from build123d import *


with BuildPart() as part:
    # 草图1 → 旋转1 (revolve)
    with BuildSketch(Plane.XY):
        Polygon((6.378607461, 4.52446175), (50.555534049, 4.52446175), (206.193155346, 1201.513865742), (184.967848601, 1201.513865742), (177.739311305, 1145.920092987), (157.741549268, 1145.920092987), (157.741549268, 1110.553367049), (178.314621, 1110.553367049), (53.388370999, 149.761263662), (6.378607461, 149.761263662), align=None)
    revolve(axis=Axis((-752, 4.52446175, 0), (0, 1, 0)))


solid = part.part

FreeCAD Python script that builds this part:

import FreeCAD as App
import Part
import Sketcher

V = App.Vector
Q = App.Units.Quantity

doc = App.newDocument("Part")
params = doc.addObject("Spreadsheet::Sheet", "Params")
for row, (alias, value) in enumerate([
    ("revolution_angle", "360 deg"),
], start=1):
    params.set(f"A{row}", alias)
    params.set(f"B{row}", "=" + value)
    params.setAlias(f"B{row}", alias)

body = doc.addObject("PartDesign::Body", "Body")

# Sketch on XY plane
sketch1 = body.newObject("Sketcher::SketchObject", "Sketch")
sketch1.AttachmentSupport = (doc.getObject("XY_Plane"), [""])
sketch1.MapMode = "FlatFace"
sketch1.addGeometry([
    Part.LineSegment(V(6.378607, 4.524462, 0), V(50.555534, 4.524462, 0)),  # 0
    Part.LineSegment(V(50.555534, 4.524462, 0), V(206.193155, 1201.513866, 0)),  # 1
    Part.LineSegment(V(206.193155, 1201.513866, 0), V(184.967849, 1201.513866, 0)),  # 2
    Part.LineSegment(V(184.967849, 1201.513866, 0), V(177.739311, 1145.920093, 0)),  # 3
    Part.LineSegment(V(177.739311, 1145.920093, 0), V(157.741549, 1145.920093, 0)),  # 4
    Part.LineSegment(V(157.741549, 1145.920093, 0), V(157.741549, 1110.553367, 0)),  # 5
    Part.LineSegment(V(157.741549, 1110.553367, 0), V(178.314621, 1110.553367, 0)),  # 6
    Part.LineSegment(V(178.314621, 1110.553367, 0), V(53.388371, 149.761264, 0)),  # 7
    Part.LineSegment(V(53.388371, 149.761264, 0), V(6.378607, 149.761264, 0)),  # 8
    Part.LineSegment(V(6.378607, 149.761264, 0), V(6.378607, 4.524462, 0)),  # 9
], False)
sketch1.addGeometry(Part.LineSegment(V(-752, 4.524462, 0), V(-752, 1201.513866, 0)), True)  # axis
sketch1.addConstraint([
    Sketcher.Constraint("Coincident", 0, 2, 1, 1),
    Sketcher.Constraint("Coincident", 1, 2, 2, 1),
    Sketcher.Constraint("Coincident", 2, 2, 3, 1),
    Sketcher.Constraint("Coincident", 3, 2, 4, 1),
    Sketcher.Constraint("Coincident", 4, 2, 5, 1),
    Sketcher.Constraint("Coincident", 5, 2, 6, 1),
    Sketcher.Constraint("Coincident", 6, 2, 7, 1),
    Sketcher.Constraint("Coincident", 7, 2, 8, 1),
    Sketcher.Constraint("Coincident", 8, 2, 9, 1),
    Sketcher.Constraint("Coincident", 9, 2, 0, 1),
    Sketcher.Constraint("Horizontal", 0),
    Sketcher.Constraint("Horizontal", 2),
    Sketcher.Constraint("Horizontal", 4),
    Sketcher.Constraint("Vertical", 5),
    Sketcher.Constraint("Horizontal", 6),
    Sketcher.Constraint("Horizontal", 8),
    Sketcher.Constraint("Vertical", 9),
    Sketcher.Constraint("Vertical", 10),
    Sketcher.Constraint("Parallel", 1, 3),
    Sketcher.Constraint("Parallel", 3, 7),
    Sketcher.Constraint("Horizontal", 9, 2, 10, 1),
    Sketcher.Constraint("Horizontal", 2, 2, 10, 2),
    Sketcher.Constraint("DistanceX", 10, 1, -1, 1, Q("752 mm")),
    Sketcher.Constraint("DistanceY", 9, 2, 9, 1, Q("145.236802 mm")),
    Sketcher.Constraint("DistanceX", 6, 1, 6, 2, Q("20.573072 mm")),
    Sketcher.Constraint("DistanceX", 4, 2, 2, 2, Q("27.226299 mm")),
    Sketcher.Constraint("DistanceY", 5, 2, 2, 2, Q("90.960499 mm")),
    Sketcher.Constraint("DistanceX", 0, 1, 0, 2, Q("44.176927 mm")),
    Sketcher.Constraint("DistanceX", 2, 2, 2, 1, Q("21.225307 mm")),
    Sketcher.Constraint("DistanceX", 4, 2, 4, 1, Q("19.997762 mm")),
    Sketcher.Constraint("DistanceX", 8, 2, 8, 1, Q("47.009764 mm")),
    Sketcher.Constraint("DistanceY", 10, 1, 10, 2, Q("1196.989404 mm")),
    Sketcher.Constraint("DistanceY", -1, 1, 0, 2, Q("4.524462 mm")),
    Sketcher.Constraint("DistanceX", -1, 1, 2, 2, Q("184.967849 mm")),
])
revolution = body.newObject("PartDesign::Revolution", "Revolution")
revolution.Profile = sketch1
revolution.ReferenceAxis = (sketch1, ["Axis0"])
revolution.setExpression("Angle", "Params.revolution_angle")

doc.recompute()
